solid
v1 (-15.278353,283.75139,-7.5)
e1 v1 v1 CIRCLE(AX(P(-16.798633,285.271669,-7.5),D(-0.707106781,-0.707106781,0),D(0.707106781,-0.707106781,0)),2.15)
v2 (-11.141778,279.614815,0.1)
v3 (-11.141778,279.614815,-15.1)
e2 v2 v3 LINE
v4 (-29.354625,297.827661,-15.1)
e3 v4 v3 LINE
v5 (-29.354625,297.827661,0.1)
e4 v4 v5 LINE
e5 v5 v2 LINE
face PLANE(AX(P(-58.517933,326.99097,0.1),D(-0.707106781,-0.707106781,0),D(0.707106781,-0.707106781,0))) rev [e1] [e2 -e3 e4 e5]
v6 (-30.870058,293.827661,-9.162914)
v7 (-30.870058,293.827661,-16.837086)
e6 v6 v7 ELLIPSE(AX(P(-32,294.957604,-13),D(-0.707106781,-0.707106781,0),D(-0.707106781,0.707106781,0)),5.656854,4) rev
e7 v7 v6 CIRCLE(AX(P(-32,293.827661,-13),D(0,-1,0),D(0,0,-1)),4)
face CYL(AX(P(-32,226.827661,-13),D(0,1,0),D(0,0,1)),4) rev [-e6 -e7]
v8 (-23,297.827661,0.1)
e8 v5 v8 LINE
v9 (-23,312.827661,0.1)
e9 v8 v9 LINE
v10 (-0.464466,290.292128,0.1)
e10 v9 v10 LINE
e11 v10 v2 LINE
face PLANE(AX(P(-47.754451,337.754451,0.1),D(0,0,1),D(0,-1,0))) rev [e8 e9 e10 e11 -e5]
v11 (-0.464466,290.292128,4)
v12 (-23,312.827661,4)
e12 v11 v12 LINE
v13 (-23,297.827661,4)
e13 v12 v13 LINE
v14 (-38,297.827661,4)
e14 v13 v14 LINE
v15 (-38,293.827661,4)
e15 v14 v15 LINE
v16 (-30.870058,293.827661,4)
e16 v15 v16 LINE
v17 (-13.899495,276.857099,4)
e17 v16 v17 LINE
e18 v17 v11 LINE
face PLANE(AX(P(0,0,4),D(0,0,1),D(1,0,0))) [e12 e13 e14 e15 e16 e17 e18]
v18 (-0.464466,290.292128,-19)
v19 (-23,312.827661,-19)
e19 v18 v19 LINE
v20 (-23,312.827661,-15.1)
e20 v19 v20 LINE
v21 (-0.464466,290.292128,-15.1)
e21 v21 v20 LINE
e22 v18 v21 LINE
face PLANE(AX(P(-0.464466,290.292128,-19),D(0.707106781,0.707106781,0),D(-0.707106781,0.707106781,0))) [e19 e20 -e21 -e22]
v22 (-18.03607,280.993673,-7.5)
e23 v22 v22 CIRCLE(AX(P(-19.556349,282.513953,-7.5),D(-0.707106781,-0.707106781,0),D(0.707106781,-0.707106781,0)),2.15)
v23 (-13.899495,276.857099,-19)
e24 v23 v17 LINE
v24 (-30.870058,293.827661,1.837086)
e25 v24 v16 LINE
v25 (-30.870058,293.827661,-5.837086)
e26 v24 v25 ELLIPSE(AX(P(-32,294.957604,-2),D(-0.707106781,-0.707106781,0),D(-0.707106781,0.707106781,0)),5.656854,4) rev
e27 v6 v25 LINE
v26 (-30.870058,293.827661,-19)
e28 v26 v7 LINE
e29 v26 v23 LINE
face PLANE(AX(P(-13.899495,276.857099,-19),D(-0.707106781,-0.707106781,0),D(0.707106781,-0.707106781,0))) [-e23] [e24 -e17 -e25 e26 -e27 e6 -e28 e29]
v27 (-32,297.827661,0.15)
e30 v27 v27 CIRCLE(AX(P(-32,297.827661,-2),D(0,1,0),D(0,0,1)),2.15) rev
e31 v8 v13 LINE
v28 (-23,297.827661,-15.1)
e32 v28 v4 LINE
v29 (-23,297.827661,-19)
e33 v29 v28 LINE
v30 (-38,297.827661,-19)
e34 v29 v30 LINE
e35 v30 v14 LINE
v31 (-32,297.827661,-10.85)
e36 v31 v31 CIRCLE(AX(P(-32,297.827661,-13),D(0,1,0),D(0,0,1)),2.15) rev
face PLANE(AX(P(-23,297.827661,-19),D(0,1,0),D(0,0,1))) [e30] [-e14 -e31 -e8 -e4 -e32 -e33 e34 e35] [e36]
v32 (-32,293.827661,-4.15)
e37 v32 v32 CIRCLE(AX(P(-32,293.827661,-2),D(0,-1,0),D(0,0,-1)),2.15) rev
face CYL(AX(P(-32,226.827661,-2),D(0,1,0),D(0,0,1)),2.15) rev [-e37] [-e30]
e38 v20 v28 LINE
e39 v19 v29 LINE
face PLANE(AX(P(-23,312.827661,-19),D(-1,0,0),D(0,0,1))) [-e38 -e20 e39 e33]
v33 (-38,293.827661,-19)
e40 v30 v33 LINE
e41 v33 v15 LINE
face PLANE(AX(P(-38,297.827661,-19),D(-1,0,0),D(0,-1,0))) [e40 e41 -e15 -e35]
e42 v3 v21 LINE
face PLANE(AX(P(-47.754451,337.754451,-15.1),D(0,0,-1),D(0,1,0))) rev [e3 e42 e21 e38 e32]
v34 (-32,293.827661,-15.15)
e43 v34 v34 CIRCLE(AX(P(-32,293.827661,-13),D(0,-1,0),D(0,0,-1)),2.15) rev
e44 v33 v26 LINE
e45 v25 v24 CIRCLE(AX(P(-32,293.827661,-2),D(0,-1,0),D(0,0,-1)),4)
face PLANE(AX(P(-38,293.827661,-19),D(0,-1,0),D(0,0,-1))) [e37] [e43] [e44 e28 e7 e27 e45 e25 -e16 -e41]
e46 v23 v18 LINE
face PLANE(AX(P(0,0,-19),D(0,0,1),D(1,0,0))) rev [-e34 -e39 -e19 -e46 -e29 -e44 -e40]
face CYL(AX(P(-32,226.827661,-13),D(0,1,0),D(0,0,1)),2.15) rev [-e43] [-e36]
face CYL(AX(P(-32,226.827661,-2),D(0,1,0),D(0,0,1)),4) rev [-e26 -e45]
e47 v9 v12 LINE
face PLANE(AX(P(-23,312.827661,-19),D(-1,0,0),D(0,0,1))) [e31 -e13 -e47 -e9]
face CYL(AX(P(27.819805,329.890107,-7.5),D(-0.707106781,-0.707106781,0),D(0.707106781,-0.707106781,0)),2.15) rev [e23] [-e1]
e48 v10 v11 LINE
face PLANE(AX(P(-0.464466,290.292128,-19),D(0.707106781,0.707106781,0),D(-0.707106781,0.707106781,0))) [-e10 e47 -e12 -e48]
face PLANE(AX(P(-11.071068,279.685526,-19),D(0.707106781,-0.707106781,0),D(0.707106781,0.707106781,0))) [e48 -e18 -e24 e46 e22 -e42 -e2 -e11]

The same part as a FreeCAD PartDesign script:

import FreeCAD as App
import Part
import Sketcher

V = App.Vector
Q = App.Units.Quantity

doc = App.newDocument("Part")
body = doc.addObject("PartDesign::Body", "Body")

sketch1 = body.newObject("Sketcher::SketchObject", "Sketch")
sketch1.AttachmentSupport = (doc.getObject("XY_Plane"), [""])
sketch1.MapMode = "FlatFace"
sketch1.addGeometry([
    Part.LineSegment(V(-23, 312.8, 0), V(-23, 297.8, 0)),
    Part.LineSegment(V(-23, 297.8, 0), V(-38, 297.8, 0)),
    Part.LineSegment(V(-38, 297.8, 0), V(-38, 293.8, 0)),
    Part.LineSegment(V(-38, 293.8, 0), V(-30.9, 293.8, 0)),
    Part.LineSegment(V(-30.9, 293.8, 0), V(-13.9, 276.9, 0)),
    Part.LineSegment(V(-13.9, 276.9, 0), V(-0.5, 290.3, 0)),
    Part.LineSegment(V(-0.5, 290.3, 0), V(-23, 312.8, 0)),
], False)
sketch1.addConstraint([
    Sketcher.Constraint("Coincident", 0, 2, 1, 1),
    Sketcher.Constraint("Coincident", 1, 2, 2, 1),
    Sketcher.Constraint("Coincident", 2, 2, 3, 1),
    Sketcher.Constraint("Coincident", 3, 2, 4, 1),
    Sketcher.Constraint("Coincident", 4, 2, 5, 1),
    Sketcher.Constraint("Coincident", 5, 2, 6, 1),
    Sketcher.Constraint("Coincident", 6, 2, 0, 1),
    Sketcher.Constraint("Vertical", 0),
    Sketcher.Constraint("Horizontal", 1),
    Sketcher.Constraint("Vertical", 2),
    Sketcher.Constraint("Horizontal", 3),
    Sketcher.Constraint("Perpendicular", 4, 5),
    Sketcher.Constraint("Perpendicular", 5, 6),
    Sketcher.Constraint("Equal", 1, 0),
    Sketcher.Constraint("DistanceX", 1, 2, 1, 1, Q("15 mm")),
    Sketcher.Constraint("DistanceY", 2, 2, 2, 1, Q("4 mm")),
    Sketcher.Constraint("Angle", 4, Q("-45 deg")),
    Sketcher.Constraint("Distance", 4, Q("24 mm")),
    Sketcher.Constraint("Distance", 5, Q("19 mm")),
    Sketcher.Constraint("DistanceX", 0, 2, -1, 1, Q("23 mm")),
    Sketcher.Constraint("DistanceY", -1, 1, 4, 2, Q("276.857099 mm")),
])
pad1 = body.newObject("PartDesign::Pad", "Pad")
pad1.Profile = sketch1
pad1.Type = "TwoLengths"
pad1.Length = 4
pad1.Length2 = 19

sketch2 = body.newObject("Sketcher::SketchObject", "Sketch001")
sketch2.Placement = App.Placement(V(-145.378297, 145.378297, 0), App.Rotation(V(0, 0, -1), V(0.707106781, 0.707106781, 0), V(0.707106781, -0.707106781, 0), "ZXY"))
sketch2.addGeometry([
    Part.LineSegment(V(0, 205, 0), V(0, 190, 0)),
    Part.LineSegment(V(0, 190, 0), V(15, 190, 0)),
    Part.LineSegment(V(15, 190, 0), V(15, 205, 0)),
    Part.LineSegment(V(15, 205, 0), V(0, 205, 0)),
], False)
sketch2.addConstraint([
    Sketcher.Constraint("Coincident", 0, 2, 1, 1),
    Sketcher.Constraint("Coincident", 1, 2, 2, 1),
    Sketcher.Constraint("Coincident", 2, 2, 3, 1),
    Sketcher.Constraint("Coincident", 3, 2, 0, 1),
    Sketcher.Constraint("Vertical", 0),
    Sketcher.Constraint("Horizontal", 1),
    Sketcher.Constraint("Vertical", 2),
    Sketcher.Constraint("Horizontal", 3),
    Sketcher.Constraint("DistanceX", 1, 1, 1, 2, Q("15.2 mm")),
    Sketcher.Constraint("DistanceX", 0, 2, -1, 1, Q("0.1 mm")),
    Sketcher.Constraint("DistanceY", 0, 2, 0, 1, Q("15.221862 mm")),
    Sketcher.Constraint("DistanceY", -1, 1, 0, 2, Q("189.839105 mm")),
])
pocket1 = body.newObject("PartDesign::Pocket", "Pocket")
pocket1.Profile = sketch2
pocket1.Length = 67

sketch3 = body.newObject("Sketcher::SketchObject", "Sketch002")
sketch3.AttachmentSupport = (doc.getObject("XZ_Plane"), [""])
sketch3.MapMode = "FlatFace"
sketch3.AttachmentOffset = App.Placement(V(0, 0, -293.827661), App.Rotation())
sketch3.addGeometry([
    Part.Circle(V(-32, -2, 0), V(0, 0, 1), 2.1),
    Part.Circle(V(-32, -13, 0), V(0, 0, 1), 2.1),
], False)
sketch3.addConstraint([
    Sketcher.Constraint("Equal", 0, 1),
    Sketcher.Constraint("Vertical", 0, 3, 1, 3),
    Sketcher.Constraint("Diameter", 0, Q("4.3 mm")),
    Sketcher.Constraint("DistanceX", 0, 3, -1, 1, Q("32 mm")),
    Sketcher.Constraint("DistanceY", 0, 3, -1, 1, Q("2 mm")),
    Sketcher.Constraint("DistanceY", 1, 3, -1, 1, Q("13 mm")),
])
pocket2 = body.newObject("PartDesign::Pocket", "Pocket001")
pocket2.Profile = sketch3
pocket2.Type = "ThroughAll"
pocket2.Midplane = True

sketch4 = body.newObject("Sketcher::SketchObject", "Sketch003")
sketch4.AttachmentSupport = (doc.getObject("XZ_Plane"), [""])
sketch4.MapMode = "FlatFace"
sketch4.AttachmentOffset = App.Placement(V(0, 0, -293.827661), App.Rotation())
sketch4.addGeometry([
    Part.Circle(V(-32, -2, 0), V(0, 0, 1), 4),
    Part.Circle(V(-32, -13, 0), V(0, 0, 1), 4),
], False)
sketch4.addConstraint([
    Sketcher.Constraint("Equal", 0, 1),
    Sketcher.Constraint("Vertical", 0, 3, 1, 3),
    Sketcher.Constraint("Diameter", 0, Q("8 mm")),
    Sketcher.Constraint("DistanceX", 0, 3, -1, 1, Q("32 mm")),
    Sketcher.Constraint("DistanceY", 0, 3, -1, 1, Q("2 mm")),
    Sketcher.Constraint("DistanceY", 1, 3, -1, 1, Q("13 mm")),
])
pocket3 = body.newObject("PartDesign::Pocket", "Pocket002")
pocket3.Profile = sketch4
pocket3.Length = 67
pocket3.Reversed = True

sketch5 = body.newObject("Sketcher::SketchObject", "Sketch004")
sketch5.Placement = App.Placement(V(131.478802, 131.478802, 0), App.Rotation(V(0, 0, 1), V(-0.707106781, 0.707106781, 0), V(-0.707106781, -0.707106781, 0), "ZXY"))
sketch5.addGeometry(Part.Circle(V(-7.5, 213.6, 0), V(0, 0, 1), 2.1), False)
sketch5.addConstraint([
    Sketcher.Constraint("Diameter", 0, Q("4.3 mm")),
    Sketcher.Constraint("DistanceX", 0, 3, -1, 1, Q("7.5 mm")),
    Sketcher.Constraint("DistanceY", -1, 1, 0, 3, Q("213.595959 mm")),
])
pocket4 = body.newObject("PartDesign::Pocket", "Pocket003")
pocket4.Profile = sketch5
pocket4.Length = 67

doc.recompute()
